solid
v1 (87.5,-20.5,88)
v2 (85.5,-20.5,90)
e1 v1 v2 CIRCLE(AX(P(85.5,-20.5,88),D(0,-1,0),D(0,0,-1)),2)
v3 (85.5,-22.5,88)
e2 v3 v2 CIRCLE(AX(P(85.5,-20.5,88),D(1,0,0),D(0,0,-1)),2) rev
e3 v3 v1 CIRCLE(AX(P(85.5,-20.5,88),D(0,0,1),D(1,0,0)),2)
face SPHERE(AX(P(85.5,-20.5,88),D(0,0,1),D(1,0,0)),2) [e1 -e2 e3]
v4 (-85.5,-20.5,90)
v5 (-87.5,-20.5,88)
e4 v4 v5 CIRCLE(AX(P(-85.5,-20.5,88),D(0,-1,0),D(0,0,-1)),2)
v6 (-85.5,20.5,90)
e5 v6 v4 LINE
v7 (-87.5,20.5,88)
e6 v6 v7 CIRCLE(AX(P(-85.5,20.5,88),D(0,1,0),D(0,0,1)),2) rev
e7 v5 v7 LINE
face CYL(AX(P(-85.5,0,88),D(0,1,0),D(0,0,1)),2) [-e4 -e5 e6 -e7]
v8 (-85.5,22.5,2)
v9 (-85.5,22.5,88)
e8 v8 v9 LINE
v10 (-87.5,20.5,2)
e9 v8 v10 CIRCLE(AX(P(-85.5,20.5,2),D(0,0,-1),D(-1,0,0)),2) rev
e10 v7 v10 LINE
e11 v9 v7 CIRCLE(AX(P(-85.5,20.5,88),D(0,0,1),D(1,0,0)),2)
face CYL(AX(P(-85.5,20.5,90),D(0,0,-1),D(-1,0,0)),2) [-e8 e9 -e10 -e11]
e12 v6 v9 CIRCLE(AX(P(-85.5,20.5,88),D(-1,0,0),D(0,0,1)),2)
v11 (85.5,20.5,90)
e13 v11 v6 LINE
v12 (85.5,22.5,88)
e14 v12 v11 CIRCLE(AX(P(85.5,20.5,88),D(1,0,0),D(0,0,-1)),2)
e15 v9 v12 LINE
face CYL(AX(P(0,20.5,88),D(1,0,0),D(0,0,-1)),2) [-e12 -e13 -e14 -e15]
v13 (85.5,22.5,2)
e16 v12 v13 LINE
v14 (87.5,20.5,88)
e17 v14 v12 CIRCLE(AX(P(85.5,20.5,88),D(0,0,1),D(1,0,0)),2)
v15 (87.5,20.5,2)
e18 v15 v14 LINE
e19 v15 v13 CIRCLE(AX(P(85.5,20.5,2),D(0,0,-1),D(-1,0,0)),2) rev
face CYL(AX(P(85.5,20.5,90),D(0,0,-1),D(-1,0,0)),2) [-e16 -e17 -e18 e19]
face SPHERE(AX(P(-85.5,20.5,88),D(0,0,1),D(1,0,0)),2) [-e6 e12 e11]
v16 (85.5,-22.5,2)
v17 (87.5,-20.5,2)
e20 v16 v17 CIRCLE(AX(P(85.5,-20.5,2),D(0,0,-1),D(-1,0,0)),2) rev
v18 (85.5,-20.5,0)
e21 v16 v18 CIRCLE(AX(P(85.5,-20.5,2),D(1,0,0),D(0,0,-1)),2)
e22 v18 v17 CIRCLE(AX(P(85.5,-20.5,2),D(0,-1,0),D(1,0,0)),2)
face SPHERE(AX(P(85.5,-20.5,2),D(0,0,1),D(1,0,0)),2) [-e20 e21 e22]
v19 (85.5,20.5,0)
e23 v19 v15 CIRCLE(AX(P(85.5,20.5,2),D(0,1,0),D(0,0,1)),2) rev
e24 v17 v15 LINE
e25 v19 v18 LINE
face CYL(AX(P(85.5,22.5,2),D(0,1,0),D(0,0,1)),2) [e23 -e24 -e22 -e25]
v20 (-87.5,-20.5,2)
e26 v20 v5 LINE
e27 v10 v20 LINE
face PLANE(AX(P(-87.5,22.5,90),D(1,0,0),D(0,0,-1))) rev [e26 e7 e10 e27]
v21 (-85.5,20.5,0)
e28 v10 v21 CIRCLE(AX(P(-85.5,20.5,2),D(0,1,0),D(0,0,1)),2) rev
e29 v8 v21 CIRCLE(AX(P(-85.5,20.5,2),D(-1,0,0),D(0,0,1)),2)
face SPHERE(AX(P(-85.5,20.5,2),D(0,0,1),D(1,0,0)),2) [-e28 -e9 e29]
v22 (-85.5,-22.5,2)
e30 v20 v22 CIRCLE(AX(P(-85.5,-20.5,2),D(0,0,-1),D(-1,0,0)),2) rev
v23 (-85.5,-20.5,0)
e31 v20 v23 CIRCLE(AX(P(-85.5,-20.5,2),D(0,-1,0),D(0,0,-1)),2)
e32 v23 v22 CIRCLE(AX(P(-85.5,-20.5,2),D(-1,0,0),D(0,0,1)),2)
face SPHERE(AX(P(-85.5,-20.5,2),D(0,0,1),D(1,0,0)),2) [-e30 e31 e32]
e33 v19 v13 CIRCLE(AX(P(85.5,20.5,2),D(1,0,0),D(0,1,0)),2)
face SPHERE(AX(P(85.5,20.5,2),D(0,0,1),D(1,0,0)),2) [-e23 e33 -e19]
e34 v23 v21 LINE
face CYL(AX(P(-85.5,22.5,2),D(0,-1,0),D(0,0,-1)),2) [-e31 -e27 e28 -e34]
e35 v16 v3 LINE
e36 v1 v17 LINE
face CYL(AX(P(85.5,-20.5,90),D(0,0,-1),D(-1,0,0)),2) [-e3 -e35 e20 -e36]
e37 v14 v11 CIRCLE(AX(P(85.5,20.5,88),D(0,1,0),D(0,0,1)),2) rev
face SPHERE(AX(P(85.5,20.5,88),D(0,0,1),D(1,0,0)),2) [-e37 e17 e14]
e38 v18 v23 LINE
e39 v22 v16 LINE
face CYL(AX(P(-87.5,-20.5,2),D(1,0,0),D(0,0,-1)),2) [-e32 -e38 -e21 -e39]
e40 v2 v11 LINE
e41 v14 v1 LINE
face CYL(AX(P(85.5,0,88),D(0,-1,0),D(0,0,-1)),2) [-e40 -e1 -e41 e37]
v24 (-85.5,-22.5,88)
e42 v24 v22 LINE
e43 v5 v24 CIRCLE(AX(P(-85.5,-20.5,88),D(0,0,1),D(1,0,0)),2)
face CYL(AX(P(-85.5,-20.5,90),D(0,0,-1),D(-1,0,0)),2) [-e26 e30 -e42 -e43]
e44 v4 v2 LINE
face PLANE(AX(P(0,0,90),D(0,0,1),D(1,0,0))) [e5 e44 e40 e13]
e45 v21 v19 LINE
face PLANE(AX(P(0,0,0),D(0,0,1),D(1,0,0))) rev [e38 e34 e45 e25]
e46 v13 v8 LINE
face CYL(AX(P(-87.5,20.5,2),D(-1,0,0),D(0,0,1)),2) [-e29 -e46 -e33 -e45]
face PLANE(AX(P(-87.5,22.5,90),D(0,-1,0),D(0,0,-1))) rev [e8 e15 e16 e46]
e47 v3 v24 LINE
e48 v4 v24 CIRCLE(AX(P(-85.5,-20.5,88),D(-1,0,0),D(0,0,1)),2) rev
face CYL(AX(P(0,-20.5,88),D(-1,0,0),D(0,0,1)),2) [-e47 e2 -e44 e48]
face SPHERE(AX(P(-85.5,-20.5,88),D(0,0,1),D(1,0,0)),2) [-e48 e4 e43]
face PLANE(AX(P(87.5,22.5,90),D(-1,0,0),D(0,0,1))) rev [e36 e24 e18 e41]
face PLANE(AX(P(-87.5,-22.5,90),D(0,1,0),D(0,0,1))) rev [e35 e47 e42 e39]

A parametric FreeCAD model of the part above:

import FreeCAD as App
import Part
import Sketcher
from FreeCAD import Vector
Q = App.Units.Quantity

doc = App.newDocument("Part")
body = doc.addObject("PartDesign::Body", "Body")

sketch1 = body.newObject("Sketcher::SketchObject", "Sketch")
sketch1.AttachmentSupport = (doc.getObject("XY_Plane"), [""])
sketch1.MapMode = "FlatFace"
sketch1.addGeometry([
    Part.LineSegment(Vector(-88, 22, 0), Vector(-88, -22, 0)),
    Part.LineSegment(Vector(-88, -22, 0), Vector(88, -22, 0)),
    Part.LineSegment(Vector(88, -22, 0), Vector(88, 22, 0)),
    Part.LineSegment(Vector(88, 22, 0), Vector(-88, 22, 0)),
], False)
sketch1.addConstraint([
    Sketcher.Constraint("Coincident", 0, 2, 1, 1),
    Sketcher.Constraint("Coincident", 1, 2, 2, 1),
    Sketcher.Constraint("Coincident", 2, 2, 3, 1),
    Sketcher.Constraint("Coincident", 3, 2, 0, 1),
    Sketcher.Constraint("Vertical", 0),
    Sketcher.Constraint("Horizontal", 1),
    Sketcher.Constraint("Vertical", 2),
    Sketcher.Constraint("Horizontal", 3),
    Sketcher.Constraint("Symmetric", 0, 2, 2, 2, -1, 1),
    Sketcher.Constraint("DistanceX", 1, 1, 1, 2, Q("175 mm")),
    Sketcher.Constraint("DistanceY", 0, 2, 0, 1, Q("45 mm")),
])
pad1 = body.newObject("PartDesign::Pad", "Pad")
pad1.Profile = sketch1
pad1.Length = 90
doc.recompute()

fillet = body.newObject("PartDesign::Fillet", "Fillet")
fillet.Base = (pad1, ["Edge1"])
fillet.UseAllEdges = True
fillet.Radius = 2

doc.recompute()
